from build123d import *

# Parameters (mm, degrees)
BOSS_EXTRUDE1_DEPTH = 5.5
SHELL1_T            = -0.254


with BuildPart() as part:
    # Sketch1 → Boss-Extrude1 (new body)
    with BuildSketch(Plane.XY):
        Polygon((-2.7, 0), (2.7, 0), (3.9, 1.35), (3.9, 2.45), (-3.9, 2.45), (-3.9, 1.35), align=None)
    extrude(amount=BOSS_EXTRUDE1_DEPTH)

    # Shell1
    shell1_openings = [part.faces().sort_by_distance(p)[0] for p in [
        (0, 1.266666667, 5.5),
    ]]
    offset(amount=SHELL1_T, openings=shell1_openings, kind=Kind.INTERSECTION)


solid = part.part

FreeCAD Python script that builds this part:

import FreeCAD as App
import Part
import Sketcher

V = App.Vector
Q = App.Units.Quantity


def faces_at(feature, points):
    """Names of the faces that lie closest to the given points."""
    faces = feature.Shape.Faces
    near = lambda p: min(range(len(faces)), key=lambda i: faces[i].distToShape(Part.Vertex(*p))[0])
    return sorted({f"Face{near(p) + 1}" for p in points})

doc = App.newDocument("Part")
body = doc.addObject("PartDesign::Body", "Body")

# Sketch on XY plane
sketch1 = doc.addObject("Sketcher::SketchObject", "Sketch")
body.addObject(sketch1)
sketch1.AttachmentSupport = (doc.XY_Plane, [""])
sketch1.MapMode = "FlatFace"
sketch1.addGeometry([
    Part.LineSegment(V(-2.7, 0, 0), V(2.7, 0, 0)),  # 0
    Part.LineSegment(V(2.7, 0, 0), V(3.9, 1.4, 0)),  # 1
    Part.LineSegment(V(3.9, 1.4, 0), V(3.9, 2.5, 0)),  # 2
    Part.LineSegment(V(3.9, 2.5, 0), V(-3.9, 2.5, 0)),  # 3
    Part.LineSegment(V(-3.9, 2.5, 0), V(-3.9, 1.4, 0)),  # 4
    Part.LineSegment(V(-3.9, 1.4, 0), V(-2.7, 0, 0)),  # 5
], False)
sketch1.addConstraint([
    Sketcher.Constraint("Coincident", 0, 2, 1, 1),
    Sketcher.Constraint("Coincident", 1, 2, 2, 1),
    Sketcher.Constraint("Coincident", 2, 2, 3, 1),
    Sketcher.Constraint("Coincident", 3, 2, 4, 1),
    Sketcher.Constraint("Coincident", 4, 2, 5, 1),
    Sketcher.Constraint("Coincident", 5, 2, 0, 1),
    Sketcher.Constraint("Horizontal", 0),
    Sketcher.Constraint("Vertical", 2),
    Sketcher.Constraint("Horizontal", 3),
    Sketcher.Constraint("Vertical", 4),
    Sketcher.Constraint("Symmetric", 0, 2, 5, 2, -1, 1),
    Sketcher.Constraint("Symmetric", 1, 2, 4, 2, -2),
    Sketcher.Constraint("DistanceX", 0, 1, 0, 2, Q("5.4 mm")),
    Sketcher.Constraint("DistanceX", 3, 2, 3, 1, Q("7.8 mm")),
    Sketcher.Constraint("DistanceY", 2, 1, 2, 2, Q("1.1 mm")),
    Sketcher.Constraint("DistanceY", -1, 1, 1, 2, Q("1.35 mm")),
])
pad1 = doc.addObject("PartDesign::Pad", "Pad")
body.addObject(pad1)
pad1.Profile = sketch1
pad1.Length = 5.5
doc.recompute()

thickness = doc.addObject("PartDesign::Thickness", "Thickness")
body.addObject(thickness)
thickness.Base = (pad1, faces_at(pad1, [(0, 1.225, 5.5)]))
thickness.Value = 0.254
thickness.Reversed = True
thickness.Join = "Intersection"

doc.recompute()
